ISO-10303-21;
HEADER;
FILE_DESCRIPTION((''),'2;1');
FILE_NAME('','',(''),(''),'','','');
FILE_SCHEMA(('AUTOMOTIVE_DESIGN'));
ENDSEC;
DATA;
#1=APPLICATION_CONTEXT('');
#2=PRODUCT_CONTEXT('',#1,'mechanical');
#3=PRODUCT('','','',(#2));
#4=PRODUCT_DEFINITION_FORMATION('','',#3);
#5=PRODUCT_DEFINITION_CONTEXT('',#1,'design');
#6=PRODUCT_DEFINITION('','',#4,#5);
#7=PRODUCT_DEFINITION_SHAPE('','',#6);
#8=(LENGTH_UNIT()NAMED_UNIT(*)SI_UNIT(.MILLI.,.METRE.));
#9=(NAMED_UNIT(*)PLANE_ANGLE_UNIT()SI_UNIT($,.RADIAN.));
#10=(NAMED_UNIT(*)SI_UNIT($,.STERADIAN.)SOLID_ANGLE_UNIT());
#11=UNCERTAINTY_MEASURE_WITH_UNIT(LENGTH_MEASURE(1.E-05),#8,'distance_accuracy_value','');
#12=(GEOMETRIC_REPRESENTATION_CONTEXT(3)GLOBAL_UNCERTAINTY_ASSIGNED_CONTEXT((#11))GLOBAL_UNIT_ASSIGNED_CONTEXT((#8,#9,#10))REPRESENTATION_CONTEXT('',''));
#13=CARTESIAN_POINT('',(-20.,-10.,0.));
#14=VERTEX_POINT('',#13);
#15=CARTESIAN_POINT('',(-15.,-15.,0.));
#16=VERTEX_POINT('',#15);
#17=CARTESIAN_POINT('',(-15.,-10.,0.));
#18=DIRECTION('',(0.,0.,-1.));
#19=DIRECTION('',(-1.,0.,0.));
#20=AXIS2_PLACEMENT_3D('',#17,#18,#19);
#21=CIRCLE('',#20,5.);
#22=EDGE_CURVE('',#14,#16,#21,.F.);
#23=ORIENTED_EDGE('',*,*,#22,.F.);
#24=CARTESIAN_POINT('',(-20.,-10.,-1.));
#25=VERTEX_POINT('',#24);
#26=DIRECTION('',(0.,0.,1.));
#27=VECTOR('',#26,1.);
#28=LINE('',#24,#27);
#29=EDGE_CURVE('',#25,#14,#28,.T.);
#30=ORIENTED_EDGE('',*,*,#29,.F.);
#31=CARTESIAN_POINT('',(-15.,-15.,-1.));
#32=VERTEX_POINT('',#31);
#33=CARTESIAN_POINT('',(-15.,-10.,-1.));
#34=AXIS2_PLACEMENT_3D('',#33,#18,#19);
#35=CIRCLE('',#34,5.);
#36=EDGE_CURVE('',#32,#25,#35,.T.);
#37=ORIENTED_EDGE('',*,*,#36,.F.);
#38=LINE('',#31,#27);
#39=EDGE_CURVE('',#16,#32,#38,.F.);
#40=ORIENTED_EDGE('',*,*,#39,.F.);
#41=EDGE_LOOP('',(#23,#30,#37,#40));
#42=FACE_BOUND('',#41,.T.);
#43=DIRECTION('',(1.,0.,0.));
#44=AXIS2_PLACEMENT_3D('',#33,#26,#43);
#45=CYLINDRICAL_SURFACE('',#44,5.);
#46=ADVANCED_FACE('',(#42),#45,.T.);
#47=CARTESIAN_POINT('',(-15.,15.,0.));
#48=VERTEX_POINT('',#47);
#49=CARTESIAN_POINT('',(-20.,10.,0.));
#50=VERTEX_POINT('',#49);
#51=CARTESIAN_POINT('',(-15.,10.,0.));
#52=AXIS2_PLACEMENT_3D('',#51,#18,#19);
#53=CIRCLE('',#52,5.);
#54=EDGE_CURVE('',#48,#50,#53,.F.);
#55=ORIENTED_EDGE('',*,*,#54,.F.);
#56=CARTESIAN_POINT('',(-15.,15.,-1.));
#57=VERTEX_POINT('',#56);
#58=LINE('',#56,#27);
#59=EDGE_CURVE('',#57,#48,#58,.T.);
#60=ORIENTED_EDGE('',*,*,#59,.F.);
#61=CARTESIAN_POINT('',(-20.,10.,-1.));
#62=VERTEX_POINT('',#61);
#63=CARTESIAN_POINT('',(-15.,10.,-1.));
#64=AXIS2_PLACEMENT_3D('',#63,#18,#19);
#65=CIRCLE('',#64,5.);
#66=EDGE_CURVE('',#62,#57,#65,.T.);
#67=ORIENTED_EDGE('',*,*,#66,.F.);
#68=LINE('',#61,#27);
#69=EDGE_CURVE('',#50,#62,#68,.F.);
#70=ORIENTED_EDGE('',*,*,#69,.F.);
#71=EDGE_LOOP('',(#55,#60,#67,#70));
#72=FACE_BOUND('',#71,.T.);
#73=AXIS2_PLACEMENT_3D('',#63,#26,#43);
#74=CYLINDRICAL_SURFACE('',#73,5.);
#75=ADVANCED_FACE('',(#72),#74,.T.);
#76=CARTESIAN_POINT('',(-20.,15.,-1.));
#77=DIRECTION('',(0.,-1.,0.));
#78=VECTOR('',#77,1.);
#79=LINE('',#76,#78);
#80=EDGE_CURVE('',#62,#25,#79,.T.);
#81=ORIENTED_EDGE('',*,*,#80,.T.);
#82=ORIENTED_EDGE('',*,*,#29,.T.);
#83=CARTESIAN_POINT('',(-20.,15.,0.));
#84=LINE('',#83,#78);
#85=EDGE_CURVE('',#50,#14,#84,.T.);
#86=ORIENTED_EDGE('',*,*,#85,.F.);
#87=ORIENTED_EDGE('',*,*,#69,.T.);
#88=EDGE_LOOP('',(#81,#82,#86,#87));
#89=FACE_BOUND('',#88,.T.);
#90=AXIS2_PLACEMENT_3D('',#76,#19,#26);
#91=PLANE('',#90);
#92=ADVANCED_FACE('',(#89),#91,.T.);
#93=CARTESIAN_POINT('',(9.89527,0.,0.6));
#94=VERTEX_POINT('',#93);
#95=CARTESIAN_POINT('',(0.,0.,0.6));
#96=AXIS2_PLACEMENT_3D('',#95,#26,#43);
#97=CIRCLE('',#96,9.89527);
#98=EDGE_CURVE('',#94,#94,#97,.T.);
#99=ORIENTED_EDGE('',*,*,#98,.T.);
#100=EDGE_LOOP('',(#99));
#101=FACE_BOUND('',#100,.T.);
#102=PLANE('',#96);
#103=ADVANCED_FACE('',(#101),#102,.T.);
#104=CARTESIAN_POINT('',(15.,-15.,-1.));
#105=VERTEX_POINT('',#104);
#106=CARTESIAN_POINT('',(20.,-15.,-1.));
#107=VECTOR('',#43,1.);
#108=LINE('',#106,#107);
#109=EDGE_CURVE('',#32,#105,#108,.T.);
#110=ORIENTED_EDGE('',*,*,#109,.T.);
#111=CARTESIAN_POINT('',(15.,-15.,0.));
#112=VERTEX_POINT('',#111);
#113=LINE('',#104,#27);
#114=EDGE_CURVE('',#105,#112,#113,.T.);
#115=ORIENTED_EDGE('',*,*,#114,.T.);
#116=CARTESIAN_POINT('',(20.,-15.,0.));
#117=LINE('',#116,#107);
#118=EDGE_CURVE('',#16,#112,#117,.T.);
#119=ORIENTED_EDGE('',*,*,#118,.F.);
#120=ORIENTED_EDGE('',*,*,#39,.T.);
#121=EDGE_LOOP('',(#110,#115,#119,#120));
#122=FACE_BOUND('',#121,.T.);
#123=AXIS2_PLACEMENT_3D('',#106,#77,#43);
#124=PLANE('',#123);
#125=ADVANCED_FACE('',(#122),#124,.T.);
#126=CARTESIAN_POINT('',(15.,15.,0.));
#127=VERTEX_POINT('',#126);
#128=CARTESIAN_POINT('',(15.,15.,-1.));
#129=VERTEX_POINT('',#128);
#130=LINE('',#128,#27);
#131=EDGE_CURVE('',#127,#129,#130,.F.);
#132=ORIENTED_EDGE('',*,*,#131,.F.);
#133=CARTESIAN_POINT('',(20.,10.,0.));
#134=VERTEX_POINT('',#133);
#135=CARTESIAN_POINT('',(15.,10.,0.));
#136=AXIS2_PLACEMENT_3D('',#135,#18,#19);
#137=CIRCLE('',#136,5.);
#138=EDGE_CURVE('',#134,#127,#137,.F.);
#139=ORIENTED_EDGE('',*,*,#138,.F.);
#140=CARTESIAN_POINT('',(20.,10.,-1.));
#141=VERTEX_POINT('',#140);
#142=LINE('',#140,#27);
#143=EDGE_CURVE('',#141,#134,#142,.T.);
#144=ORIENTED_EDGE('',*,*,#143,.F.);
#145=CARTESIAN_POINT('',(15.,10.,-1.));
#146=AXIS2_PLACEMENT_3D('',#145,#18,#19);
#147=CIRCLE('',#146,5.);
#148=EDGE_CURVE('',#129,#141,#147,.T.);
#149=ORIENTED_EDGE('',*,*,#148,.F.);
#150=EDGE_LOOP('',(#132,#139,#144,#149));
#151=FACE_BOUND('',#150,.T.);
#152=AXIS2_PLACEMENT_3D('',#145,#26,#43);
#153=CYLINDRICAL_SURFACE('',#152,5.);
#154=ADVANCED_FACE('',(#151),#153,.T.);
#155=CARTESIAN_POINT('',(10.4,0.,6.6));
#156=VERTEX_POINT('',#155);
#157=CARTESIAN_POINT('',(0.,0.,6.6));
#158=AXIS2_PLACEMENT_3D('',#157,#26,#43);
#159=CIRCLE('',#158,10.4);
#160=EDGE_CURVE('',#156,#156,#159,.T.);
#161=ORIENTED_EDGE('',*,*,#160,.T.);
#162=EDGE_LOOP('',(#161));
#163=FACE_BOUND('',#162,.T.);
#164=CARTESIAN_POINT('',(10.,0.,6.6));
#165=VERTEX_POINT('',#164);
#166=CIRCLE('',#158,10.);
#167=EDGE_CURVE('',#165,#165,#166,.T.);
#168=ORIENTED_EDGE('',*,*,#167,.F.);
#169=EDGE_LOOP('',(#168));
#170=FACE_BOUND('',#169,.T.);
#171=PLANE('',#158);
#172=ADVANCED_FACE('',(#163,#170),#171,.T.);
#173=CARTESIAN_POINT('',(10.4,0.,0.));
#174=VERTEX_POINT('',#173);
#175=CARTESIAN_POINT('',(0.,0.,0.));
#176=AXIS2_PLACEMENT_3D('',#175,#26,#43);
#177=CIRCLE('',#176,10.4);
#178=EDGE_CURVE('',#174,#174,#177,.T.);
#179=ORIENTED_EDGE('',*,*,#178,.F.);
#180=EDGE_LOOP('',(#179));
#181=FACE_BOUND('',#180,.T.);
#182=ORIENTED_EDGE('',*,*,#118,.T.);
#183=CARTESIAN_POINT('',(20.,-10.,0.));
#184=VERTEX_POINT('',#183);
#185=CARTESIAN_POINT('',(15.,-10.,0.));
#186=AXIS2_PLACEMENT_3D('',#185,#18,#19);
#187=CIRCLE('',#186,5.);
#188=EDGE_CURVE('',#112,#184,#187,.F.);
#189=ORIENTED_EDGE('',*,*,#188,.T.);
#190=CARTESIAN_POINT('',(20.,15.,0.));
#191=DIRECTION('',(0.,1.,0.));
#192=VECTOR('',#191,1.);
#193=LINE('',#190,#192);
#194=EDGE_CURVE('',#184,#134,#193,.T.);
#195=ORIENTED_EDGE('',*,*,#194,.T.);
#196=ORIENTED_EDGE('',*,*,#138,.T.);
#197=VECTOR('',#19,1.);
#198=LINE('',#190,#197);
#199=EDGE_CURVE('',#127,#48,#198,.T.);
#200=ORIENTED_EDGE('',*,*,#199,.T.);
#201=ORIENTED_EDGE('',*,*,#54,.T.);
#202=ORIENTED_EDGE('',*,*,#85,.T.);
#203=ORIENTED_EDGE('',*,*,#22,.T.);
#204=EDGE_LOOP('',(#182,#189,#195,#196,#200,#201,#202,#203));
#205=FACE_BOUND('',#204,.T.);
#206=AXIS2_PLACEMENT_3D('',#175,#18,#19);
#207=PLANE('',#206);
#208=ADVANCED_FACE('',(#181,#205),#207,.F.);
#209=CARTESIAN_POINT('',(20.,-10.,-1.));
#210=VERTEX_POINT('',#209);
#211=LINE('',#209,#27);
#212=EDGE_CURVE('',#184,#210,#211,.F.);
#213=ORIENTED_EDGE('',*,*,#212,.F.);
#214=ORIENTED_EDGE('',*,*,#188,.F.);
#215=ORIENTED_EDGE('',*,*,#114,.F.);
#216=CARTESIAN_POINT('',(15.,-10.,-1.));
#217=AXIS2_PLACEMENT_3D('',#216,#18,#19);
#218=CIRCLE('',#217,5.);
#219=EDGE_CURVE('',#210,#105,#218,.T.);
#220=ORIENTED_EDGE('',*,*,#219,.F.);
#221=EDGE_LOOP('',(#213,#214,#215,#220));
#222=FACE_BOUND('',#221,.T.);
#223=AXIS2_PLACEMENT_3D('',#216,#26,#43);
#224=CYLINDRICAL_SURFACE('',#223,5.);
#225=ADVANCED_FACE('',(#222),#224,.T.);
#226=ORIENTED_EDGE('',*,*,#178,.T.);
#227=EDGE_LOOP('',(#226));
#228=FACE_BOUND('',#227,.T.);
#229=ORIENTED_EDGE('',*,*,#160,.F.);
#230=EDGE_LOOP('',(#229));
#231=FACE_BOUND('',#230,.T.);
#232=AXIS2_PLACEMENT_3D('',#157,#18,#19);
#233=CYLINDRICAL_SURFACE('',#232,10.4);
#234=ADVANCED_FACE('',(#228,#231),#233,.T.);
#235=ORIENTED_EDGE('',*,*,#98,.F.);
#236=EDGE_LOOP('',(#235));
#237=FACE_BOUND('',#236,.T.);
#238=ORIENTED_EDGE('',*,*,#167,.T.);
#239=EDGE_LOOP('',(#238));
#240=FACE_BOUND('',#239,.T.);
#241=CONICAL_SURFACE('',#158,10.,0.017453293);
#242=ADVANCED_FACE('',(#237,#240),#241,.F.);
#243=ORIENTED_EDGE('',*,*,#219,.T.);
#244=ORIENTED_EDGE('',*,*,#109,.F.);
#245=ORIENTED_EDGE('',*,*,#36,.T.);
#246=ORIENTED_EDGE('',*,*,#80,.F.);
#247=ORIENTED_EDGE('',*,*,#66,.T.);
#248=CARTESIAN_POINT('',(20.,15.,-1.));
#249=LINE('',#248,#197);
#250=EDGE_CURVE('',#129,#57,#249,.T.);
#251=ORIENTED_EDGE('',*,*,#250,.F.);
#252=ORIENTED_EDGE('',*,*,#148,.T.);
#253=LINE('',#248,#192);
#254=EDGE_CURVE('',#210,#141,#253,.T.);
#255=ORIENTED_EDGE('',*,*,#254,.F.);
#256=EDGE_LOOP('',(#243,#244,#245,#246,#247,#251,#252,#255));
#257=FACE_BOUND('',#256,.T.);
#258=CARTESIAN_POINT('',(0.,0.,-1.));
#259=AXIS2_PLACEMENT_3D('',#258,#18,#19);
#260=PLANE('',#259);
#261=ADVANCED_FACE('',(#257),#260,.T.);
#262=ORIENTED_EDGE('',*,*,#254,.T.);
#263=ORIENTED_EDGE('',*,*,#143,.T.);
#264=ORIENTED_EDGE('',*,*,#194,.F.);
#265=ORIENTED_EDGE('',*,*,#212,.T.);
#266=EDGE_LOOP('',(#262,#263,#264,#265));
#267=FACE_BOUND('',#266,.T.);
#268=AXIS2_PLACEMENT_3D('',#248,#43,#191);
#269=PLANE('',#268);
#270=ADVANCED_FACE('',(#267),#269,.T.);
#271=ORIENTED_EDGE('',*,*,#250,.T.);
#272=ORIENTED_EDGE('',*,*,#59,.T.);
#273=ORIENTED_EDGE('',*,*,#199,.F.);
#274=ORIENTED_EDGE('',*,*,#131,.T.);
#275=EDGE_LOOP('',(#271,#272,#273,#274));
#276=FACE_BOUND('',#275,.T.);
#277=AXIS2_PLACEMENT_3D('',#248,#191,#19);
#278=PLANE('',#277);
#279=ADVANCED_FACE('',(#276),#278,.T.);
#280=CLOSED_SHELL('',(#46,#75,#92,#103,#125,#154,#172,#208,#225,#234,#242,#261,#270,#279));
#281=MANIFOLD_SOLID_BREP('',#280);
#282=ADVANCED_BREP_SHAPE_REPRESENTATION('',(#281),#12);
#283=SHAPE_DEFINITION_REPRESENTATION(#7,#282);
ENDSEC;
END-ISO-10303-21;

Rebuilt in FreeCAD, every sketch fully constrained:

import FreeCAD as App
import Part
import Sketcher

V = App.Vector
Q = App.Units.Quantity


def edges_at(feature, points):
    """Names of the edges that pass closest to the given points."""
    edges = feature.Shape.Edges
    near = lambda p: min(range(len(edges)), key=lambda i: edges[i].distToShape(Part.Vertex(*p))[0])
    return sorted({f"Edge{near(p) + 1}" for p in points})


def add_polygon(sketch, points):
    """Adds a closed chain of lines whose ends are joined by coincident constraints."""
    first, n = sketch.GeometryCount, len(points)
    for a, b in zip(points, points[1:] + points[:1]):
        sketch.addGeometry(Part.LineSegment(App.Vector(*a, 0), App.Vector(*b, 0)), False)
    for i in range(n):
        sketch.addConstraint(Sketcher.Constraint("Coincident", first + i, 2, first + (i + 1) % n, 1))

doc = App.newDocument("Part")
body = doc.addObject("PartDesign::Body", "Body")

# Sketch on XY plane
sketch1 = body.newObject("Sketcher::SketchObject", "Sketch")
sketch1.AttachmentSupport = (doc.getObject("XY_Plane"), [""])
sketch1.MapMode = "FlatFace"
sketch1.addGeometry(Part.Circle(V(0, 0, 0), V(0, 0, 1), 10.4), False)
sketch1.addConstraint([
    Sketcher.Constraint("Coincident", 0, 3, -1, 1),
    Sketcher.Constraint("Diameter", 0, Q("20.8 mm")),
])
pad1 = body.newObject("PartDesign::Pad", "Pad")
pad1.Profile = sketch1
pad1.Length = 6.6

# Sketch on XY plane
sketch2 = body.newObject("Sketcher::SketchObject", "Sketch001")
sketch2.AttachmentSupport = (doc.getObject("XY_Plane"), [""])
sketch2.MapMode = "FlatFace"
sketch2.AttachmentOffset = App.Placement(V(0, 0, 6.6), App.Rotation())
sketch2.addGeometry(Part.Circle(V(0, 0, 0), V(0, 0, 1), 10), False)
sketch2.addConstraint([
    Sketcher.Constraint("Coincident", 0, 3, -1, 1),
    Sketcher.Constraint("Diameter", 0, Q("20 mm")),
])
pocket1 = body.newObject("PartDesign::Pocket", "Pocket")
pocket1.Profile = sketch2
pocket1.Length = 6
pocket1.TaperAngle = -1

# Sketch on XY plane
sketch3 = body.newObject("Sketcher::SketchObject", "Sketch002")
sketch3.AttachmentSupport = (doc.getObject("XY_Plane"), [""])
sketch3.MapMode = "FlatFace"
add_polygon(sketch3, [(-20, 15), (-20, -15), (20, -15), (20, 15)])  # lines 0-3
sketch3.addConstraint([
    Sketcher.Constraint("Vertical", 0),
    Sketcher.Constraint("Horizontal", 1),
    Sketcher.Constraint("Vertical", 2),
    Sketcher.Constraint("Horizontal", 3),
    Sketcher.Constraint("Symmetric", 0, 2, 2, 2, -1, 1),
    Sketcher.Constraint("DistanceX", 1, 1, 1, 2, Q("40 mm")),
    Sketcher.Constraint("DistanceY", 0, 2, 0, 1, Q("30 mm")),
])
pad2 = body.newObject("PartDesign::Pad", "Pad001")
pad2.Profile = sketch3
pad2.Length = 1
pad2.Reversed = True
doc.recompute()

fillet = body.newObject("PartDesign::Fillet", "Fillet")
fillet.Base = (pad2, edges_at(pad2, [
    (-20, -15, -0.5),
    (-20, 15, -0.5),
    (20, 15, -0.5),
    (20, -15, -0.5),
]))
fillet.Radius = 5

doc.recompute()
